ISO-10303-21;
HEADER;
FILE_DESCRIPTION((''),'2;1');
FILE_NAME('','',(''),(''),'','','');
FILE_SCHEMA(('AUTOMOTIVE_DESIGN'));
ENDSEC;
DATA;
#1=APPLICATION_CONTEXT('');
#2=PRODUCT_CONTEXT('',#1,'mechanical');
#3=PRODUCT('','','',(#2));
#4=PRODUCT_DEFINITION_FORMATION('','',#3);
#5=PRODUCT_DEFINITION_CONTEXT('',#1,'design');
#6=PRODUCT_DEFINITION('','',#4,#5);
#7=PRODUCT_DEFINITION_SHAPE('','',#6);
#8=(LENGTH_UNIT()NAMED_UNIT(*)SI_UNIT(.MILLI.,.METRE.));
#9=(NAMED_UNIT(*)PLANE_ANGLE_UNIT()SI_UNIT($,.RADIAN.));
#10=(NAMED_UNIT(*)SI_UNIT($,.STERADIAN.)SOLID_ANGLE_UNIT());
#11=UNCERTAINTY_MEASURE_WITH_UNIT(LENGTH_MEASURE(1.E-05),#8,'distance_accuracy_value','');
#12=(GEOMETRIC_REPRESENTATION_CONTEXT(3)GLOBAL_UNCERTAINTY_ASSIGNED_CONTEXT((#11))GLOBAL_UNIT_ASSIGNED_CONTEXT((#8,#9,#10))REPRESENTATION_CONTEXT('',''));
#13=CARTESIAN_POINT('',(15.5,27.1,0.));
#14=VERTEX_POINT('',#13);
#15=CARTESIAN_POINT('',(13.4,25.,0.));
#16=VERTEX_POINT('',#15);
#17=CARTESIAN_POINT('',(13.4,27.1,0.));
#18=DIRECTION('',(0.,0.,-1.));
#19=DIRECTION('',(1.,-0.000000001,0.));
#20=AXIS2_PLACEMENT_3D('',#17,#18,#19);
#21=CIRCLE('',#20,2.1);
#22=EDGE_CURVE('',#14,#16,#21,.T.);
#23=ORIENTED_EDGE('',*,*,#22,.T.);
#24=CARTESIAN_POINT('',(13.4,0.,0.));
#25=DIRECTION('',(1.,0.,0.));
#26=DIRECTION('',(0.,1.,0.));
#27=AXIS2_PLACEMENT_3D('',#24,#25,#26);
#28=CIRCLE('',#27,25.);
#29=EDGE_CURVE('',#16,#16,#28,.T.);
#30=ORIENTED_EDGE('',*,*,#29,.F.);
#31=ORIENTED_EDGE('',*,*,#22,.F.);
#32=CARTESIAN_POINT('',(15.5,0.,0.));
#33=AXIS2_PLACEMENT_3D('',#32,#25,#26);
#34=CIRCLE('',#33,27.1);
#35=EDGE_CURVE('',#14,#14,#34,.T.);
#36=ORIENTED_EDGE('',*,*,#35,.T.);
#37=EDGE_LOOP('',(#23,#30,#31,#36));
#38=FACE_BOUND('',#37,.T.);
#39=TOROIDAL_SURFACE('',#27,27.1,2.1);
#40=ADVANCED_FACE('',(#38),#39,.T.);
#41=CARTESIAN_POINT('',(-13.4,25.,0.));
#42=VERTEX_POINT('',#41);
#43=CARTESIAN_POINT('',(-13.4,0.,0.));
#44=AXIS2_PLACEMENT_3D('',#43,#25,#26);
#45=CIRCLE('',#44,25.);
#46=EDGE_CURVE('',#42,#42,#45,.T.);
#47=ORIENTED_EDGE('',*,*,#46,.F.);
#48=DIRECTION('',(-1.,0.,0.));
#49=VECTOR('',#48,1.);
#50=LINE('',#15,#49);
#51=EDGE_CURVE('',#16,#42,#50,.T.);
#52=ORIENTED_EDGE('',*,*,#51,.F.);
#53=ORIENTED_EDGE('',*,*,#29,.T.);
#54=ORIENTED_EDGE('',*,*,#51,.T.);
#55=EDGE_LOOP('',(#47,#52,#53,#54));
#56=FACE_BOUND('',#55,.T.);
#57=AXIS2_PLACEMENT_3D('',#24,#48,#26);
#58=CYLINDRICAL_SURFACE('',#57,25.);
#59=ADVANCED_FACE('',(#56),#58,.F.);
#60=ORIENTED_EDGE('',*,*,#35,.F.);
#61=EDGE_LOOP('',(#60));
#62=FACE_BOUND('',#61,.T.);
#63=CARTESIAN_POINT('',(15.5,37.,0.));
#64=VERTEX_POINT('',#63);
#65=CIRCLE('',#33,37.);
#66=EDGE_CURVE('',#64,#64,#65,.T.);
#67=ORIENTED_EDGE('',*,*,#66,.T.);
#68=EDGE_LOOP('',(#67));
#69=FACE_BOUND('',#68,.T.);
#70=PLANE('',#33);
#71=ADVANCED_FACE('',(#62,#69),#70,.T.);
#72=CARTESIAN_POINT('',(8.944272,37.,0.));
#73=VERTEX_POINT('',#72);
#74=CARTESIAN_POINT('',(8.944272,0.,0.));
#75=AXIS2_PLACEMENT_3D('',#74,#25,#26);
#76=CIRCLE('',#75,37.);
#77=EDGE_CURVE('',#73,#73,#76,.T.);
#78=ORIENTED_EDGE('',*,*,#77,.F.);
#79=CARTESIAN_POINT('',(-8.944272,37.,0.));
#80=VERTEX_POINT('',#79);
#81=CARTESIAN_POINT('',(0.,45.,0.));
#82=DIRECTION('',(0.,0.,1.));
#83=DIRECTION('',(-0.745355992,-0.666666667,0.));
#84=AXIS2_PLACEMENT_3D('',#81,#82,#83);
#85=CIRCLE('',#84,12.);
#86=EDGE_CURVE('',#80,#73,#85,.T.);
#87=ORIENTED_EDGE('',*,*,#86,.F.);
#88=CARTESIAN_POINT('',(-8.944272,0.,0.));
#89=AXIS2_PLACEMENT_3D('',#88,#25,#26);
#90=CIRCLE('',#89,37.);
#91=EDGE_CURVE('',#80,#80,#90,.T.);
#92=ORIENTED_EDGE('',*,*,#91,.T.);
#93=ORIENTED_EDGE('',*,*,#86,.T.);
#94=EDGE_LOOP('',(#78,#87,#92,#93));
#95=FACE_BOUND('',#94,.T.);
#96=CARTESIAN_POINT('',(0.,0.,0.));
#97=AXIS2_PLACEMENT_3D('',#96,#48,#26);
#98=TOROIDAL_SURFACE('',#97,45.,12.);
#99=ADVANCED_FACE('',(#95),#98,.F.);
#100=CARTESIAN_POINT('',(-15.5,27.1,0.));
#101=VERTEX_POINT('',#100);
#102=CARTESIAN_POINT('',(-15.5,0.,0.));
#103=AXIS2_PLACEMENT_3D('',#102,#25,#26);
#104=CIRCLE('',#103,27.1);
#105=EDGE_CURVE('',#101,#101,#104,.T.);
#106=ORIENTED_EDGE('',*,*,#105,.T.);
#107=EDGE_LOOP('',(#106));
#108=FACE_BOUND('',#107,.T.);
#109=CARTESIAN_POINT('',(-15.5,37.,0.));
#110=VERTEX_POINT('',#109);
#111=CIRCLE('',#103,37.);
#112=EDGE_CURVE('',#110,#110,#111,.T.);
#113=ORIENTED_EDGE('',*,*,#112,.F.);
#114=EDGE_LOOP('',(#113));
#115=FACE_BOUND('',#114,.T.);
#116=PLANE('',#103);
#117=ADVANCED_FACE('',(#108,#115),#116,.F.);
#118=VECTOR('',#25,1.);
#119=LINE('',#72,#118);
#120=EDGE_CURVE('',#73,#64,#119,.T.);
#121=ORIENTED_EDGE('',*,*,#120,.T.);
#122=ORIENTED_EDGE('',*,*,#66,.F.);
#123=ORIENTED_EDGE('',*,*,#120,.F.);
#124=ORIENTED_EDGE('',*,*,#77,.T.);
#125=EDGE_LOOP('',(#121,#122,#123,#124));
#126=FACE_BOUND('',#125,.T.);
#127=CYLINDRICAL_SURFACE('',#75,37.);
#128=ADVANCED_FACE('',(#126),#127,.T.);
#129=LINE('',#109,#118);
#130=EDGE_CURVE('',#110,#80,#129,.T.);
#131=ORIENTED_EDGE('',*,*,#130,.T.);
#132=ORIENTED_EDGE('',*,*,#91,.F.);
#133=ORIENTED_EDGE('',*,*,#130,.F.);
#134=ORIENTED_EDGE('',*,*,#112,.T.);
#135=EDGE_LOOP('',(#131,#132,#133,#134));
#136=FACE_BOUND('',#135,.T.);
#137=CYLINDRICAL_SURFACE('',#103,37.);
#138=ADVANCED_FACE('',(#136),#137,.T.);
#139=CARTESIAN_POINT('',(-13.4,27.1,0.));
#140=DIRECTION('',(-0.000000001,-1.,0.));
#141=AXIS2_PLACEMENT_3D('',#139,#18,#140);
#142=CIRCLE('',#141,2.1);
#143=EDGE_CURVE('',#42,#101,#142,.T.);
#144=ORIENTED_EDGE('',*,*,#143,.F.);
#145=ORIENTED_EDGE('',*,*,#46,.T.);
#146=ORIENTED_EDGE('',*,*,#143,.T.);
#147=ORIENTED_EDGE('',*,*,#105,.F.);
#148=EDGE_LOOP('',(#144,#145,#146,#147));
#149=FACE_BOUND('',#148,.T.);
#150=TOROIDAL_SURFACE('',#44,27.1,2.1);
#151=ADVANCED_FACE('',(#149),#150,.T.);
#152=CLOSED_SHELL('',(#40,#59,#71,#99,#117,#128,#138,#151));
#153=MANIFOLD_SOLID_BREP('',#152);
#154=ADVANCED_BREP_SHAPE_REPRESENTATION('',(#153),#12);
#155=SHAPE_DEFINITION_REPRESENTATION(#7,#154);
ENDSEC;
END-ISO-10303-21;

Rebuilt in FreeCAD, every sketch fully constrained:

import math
import FreeCAD as App
import Part
import Sketcher
from FreeCAD import Vector
Q = App.Units.Quantity

doc = App.newDocument("Part")
params = doc.addObject("Spreadsheet::Sheet", "Params")
for row, (alias, value) in enumerate([
    ("sketch1_radius", "12 mm"),
    ("sketch1_radius2", "2.1 mm"),
    ("sketch1_width", "26.8 mm"),
    ("sketch1_height", "9.9 mm"),
    ("revolution_angle", "360 deg"),
], start=1):
    params.set(f"A{row}", alias)
    params.set(f"B{row}", "=" + value)
    params.setAlias(f"B{row}", alias)

body = doc.addObject("PartDesign::Body", "Body")

sketch1 = body.newObject("Sketcher::SketchObject", "Sketch")
sketch1.AttachmentSupport = (doc.getObject("XY_Plane"), [""])
sketch1.MapMode = "FlatFace"
sketch1.addGeometry([
    Part.LineSegment(Vector(15.5, 37, 0), Vector(8.9, 37, 0)),
    Part.ArcOfCircle(Part.Circle(Vector(0, 45, 0), Vector(0, 0, 1), 12), math.radians(-138), math.radians(-42)),
    Part.LineSegment(Vector(-8.9, 37, 0), Vector(-15.5, 37, 0)),
    Part.LineSegment(Vector(-15.5, 37, 0), Vector(-15.5, 27.1, 0)),
    Part.ArcOfCircle(Part.Circle(Vector(-13.4, 27.1, 0), Vector(0, 0, 1), 2.1), math.radians(-180), math.radians(-90)),
    Part.LineSegment(Vector(-13.4, 25, 0), Vector(13.4, 25, 0)),
    Part.ArcOfCircle(Part.Circle(Vector(13.4, 27.1, 0), Vector(0, 0, 1), 2.1), math.radians(-90), math.radians(0)),
    Part.LineSegment(Vector(15.5, 27.1, 0), Vector(15.5, 37, 0)),
], False)
sketch1.addConstraint([
    Sketcher.Constraint("Coincident", 0, 2, 1, 2),
    Sketcher.Constraint("Coincident", 1, 1, 2, 1),
    Sketcher.Constraint("Coincident", 2, 2, 3, 1),
    Sketcher.Constraint("Tangent", 3, 2, 4, 1),
    Sketcher.Constraint("Tangent", 4, 2, 5, 1),
    Sketcher.Constraint("Tangent", 5, 2, 6, 1),
    Sketcher.Constraint("Tangent", 6, 2, 7, 1),
    Sketcher.Constraint("Coincident", 7, 2, 0, 1),
    Sketcher.Constraint("Horizontal", 0),
    Sketcher.Constraint("Horizontal", 2),
    Sketcher.Constraint("Vertical", 3),
    Sketcher.Constraint("Horizontal", 5),
    Sketcher.Constraint("Vertical", 7),
    Sketcher.Constraint("Equal", 4, 6),
    Sketcher.Constraint("Symmetric", 0, 2, 1, 1, -2),
    Sketcher.Constraint("Equal", 0, 2),
    Sketcher.Constraint("Radius", 1, Q("12 mm")),
    Sketcher.Constraint("Radius", 4, Q("2.1 mm")),
    Sketcher.Constraint("DistanceX", 5, 1, 5, 2, Q("26.8 mm")),
    Sketcher.Constraint("DistanceY", 3, 2, 3, 1, Q("9.9 mm")),
    Sketcher.Constraint("DistanceY", -1, 1, 1, 3, Q("45 mm")),
    Sketcher.Constraint("DistanceY", -1, 1, 0, 2, Q("37 mm")),
])
sketch1.setExpression("Constraints[16]", "Params.sketch1_radius")
sketch1.setExpression("Constraints[17]", "Params.sketch1_radius2")
sketch1.setExpression("Constraints[18]", "Params.sketch1_width")
sketch1.setExpression("Constraints[19]", "Params.sketch1_height")
revolution = body.newObject("PartDesign::Revolution", "Revolution")
revolution.Profile = sketch1
revolution.ReferenceAxis = (sketch1, ["H_Axis"])
revolution.setExpression("Angle", "Params.revolution_angle")

doc.recompute()
